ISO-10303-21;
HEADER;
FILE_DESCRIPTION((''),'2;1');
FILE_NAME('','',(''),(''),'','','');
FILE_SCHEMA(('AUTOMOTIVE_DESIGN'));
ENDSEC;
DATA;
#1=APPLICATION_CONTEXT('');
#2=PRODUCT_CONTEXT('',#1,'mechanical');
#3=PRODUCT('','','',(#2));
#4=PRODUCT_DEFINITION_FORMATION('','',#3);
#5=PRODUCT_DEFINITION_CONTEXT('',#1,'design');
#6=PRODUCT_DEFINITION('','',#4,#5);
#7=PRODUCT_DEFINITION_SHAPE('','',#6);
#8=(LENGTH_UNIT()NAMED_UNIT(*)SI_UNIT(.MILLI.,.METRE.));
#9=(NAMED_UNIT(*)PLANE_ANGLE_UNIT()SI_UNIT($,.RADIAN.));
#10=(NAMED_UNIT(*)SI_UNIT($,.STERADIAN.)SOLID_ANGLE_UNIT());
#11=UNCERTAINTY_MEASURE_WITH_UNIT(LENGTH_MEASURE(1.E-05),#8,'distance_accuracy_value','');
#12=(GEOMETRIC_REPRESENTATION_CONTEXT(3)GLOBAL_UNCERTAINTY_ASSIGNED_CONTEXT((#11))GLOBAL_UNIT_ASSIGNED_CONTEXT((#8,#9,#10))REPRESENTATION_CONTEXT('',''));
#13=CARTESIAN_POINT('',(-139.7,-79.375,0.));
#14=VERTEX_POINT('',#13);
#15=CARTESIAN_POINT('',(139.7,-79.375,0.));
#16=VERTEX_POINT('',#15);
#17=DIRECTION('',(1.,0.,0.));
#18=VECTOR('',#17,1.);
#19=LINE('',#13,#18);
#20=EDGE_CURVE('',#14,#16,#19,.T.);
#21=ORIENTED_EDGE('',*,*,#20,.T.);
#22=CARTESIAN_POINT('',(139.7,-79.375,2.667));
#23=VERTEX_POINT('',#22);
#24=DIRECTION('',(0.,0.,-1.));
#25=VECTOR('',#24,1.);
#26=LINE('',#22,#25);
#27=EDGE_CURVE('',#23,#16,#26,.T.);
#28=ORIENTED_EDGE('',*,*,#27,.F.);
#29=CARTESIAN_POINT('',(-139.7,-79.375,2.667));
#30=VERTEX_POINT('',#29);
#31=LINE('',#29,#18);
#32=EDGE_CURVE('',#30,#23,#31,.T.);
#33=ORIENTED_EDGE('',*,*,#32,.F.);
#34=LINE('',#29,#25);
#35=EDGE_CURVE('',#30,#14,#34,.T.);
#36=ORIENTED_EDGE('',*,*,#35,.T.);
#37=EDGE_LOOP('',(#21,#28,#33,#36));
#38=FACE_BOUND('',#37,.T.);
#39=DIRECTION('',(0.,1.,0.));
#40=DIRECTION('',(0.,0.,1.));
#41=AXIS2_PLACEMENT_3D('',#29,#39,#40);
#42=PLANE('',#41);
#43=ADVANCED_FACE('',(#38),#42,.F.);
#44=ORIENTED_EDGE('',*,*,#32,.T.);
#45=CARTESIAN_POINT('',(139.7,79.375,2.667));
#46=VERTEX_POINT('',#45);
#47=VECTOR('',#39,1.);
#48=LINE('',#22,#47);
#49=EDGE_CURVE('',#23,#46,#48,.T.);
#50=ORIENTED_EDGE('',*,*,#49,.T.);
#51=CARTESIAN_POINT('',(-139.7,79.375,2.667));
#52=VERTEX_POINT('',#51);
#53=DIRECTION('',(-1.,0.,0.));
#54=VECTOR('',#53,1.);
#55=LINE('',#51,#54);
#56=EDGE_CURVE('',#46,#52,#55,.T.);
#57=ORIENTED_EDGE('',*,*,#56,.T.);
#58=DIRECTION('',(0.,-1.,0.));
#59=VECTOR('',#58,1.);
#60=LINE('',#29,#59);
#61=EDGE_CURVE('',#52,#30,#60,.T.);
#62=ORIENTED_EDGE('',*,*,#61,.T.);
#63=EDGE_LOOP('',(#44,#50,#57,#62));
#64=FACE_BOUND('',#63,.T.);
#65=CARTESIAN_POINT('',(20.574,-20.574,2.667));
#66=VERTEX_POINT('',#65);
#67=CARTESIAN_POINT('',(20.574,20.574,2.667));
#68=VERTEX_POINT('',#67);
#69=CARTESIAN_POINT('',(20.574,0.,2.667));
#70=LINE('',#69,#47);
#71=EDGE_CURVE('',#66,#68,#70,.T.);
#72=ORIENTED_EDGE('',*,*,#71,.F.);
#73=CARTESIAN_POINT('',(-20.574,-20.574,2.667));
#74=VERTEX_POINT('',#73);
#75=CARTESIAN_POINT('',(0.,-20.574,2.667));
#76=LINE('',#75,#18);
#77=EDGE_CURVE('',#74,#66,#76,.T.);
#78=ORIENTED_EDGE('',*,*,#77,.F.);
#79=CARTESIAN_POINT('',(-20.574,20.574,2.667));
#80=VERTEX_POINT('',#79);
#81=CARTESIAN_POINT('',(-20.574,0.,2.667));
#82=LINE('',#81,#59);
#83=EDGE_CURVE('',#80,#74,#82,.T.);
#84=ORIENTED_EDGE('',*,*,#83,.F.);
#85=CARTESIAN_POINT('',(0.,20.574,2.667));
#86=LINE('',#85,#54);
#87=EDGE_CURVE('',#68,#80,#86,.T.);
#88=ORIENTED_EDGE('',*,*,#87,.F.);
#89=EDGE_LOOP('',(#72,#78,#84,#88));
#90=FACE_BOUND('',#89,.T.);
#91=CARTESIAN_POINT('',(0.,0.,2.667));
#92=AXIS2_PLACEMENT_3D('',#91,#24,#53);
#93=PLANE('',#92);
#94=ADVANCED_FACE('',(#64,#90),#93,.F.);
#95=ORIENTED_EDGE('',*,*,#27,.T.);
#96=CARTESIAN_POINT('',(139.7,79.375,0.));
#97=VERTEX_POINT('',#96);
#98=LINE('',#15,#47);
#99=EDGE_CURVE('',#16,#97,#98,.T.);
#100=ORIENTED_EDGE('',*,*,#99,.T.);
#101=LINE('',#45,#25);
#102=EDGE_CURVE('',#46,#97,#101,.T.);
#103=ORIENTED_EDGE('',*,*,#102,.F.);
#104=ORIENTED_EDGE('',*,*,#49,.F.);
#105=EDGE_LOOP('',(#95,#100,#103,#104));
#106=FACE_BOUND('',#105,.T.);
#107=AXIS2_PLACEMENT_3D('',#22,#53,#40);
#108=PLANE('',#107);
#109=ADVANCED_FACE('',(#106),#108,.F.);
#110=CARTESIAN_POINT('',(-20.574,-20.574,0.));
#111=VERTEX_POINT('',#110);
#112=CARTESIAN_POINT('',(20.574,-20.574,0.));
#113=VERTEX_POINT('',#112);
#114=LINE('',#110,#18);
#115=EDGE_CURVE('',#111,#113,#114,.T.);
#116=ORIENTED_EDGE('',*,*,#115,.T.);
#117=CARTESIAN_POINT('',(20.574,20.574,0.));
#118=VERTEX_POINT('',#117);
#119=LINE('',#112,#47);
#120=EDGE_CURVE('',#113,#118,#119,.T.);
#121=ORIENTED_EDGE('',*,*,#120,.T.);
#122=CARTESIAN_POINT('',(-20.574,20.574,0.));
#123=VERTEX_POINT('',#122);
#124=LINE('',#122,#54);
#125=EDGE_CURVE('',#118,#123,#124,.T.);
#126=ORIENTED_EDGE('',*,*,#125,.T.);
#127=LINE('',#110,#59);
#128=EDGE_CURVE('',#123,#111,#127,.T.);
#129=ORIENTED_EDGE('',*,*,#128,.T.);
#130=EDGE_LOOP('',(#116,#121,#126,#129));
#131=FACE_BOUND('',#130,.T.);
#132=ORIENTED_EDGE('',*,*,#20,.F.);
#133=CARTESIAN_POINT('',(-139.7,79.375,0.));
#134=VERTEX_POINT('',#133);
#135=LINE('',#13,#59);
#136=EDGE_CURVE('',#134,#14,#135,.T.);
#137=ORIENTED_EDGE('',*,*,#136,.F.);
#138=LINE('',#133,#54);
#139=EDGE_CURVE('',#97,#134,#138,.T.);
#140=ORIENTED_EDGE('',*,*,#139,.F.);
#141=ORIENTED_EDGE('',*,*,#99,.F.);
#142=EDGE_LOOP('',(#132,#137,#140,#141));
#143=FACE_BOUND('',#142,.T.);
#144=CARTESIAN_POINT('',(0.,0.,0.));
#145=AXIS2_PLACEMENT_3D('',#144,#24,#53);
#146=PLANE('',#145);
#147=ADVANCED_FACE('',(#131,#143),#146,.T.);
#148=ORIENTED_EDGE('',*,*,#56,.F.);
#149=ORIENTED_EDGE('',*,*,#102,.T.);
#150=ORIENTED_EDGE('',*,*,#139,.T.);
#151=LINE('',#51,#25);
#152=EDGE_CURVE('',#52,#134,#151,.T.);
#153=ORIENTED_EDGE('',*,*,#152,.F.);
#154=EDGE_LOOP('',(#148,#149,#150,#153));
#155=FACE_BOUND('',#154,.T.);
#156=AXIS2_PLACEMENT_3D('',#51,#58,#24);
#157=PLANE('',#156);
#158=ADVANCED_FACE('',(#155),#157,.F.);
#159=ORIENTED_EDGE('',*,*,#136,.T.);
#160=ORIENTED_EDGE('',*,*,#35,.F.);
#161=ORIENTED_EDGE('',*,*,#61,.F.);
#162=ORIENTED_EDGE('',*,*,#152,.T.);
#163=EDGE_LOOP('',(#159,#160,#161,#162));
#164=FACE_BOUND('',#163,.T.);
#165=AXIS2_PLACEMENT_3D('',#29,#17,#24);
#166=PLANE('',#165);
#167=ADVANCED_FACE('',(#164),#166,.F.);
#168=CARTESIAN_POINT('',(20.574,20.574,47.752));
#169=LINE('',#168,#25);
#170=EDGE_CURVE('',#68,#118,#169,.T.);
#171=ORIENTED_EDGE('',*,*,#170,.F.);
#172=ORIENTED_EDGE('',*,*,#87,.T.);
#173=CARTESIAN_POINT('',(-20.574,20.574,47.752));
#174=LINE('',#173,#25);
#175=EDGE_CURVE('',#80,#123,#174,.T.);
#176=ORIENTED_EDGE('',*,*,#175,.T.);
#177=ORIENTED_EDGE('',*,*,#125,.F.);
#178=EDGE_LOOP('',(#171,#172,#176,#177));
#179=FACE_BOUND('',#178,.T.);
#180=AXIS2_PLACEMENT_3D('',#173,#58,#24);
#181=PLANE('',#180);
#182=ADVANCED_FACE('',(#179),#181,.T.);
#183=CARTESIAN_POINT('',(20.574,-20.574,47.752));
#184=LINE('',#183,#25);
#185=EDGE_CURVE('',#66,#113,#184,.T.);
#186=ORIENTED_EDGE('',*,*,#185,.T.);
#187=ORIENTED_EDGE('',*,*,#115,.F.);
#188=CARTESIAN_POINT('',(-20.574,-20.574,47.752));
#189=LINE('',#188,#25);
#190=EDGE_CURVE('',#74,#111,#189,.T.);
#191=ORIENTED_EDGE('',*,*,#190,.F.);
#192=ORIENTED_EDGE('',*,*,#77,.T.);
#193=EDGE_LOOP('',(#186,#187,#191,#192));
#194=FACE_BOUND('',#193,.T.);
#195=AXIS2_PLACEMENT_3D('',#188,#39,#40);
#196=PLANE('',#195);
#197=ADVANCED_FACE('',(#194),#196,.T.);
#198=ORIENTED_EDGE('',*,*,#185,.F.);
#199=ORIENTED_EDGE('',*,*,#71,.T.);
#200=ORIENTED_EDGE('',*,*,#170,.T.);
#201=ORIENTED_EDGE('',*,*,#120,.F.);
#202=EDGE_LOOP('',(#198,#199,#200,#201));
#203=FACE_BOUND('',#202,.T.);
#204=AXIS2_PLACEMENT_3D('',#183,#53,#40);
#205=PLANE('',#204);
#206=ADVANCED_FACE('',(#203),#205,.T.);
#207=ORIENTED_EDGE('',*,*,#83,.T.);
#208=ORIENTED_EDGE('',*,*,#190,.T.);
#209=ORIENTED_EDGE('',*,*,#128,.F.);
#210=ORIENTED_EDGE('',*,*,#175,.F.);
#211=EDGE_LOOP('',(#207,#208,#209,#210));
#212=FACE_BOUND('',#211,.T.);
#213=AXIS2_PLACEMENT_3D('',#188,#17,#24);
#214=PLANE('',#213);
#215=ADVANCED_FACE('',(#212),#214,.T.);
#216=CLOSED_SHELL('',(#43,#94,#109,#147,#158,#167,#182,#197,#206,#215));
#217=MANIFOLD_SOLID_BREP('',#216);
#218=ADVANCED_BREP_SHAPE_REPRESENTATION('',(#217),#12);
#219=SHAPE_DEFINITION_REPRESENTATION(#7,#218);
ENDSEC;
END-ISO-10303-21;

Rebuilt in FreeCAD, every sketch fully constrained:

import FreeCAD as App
import Part
import Sketcher
Q = App.Units.Quantity


def add_polygon(sketch, points):
    """Adds a closed chain of lines whose ends are joined by coincident constraints."""
    first, n = sketch.GeometryCount, len(points)
    for a, b in zip(points, points[1:] + points[:1]):
        sketch.addGeometry(Part.LineSegment(App.Vector(*a, 0), App.Vector(*b, 0)), False)
    for i in range(n):
        sketch.addConstraint(Sketcher.Constraint("Coincident", first + i, 2, first + (i + 1) % n, 1))

doc = App.newDocument("Part")
params = doc.addObject("Spreadsheet::Sheet", "Params")
for row, (alias, value) in enumerate([
    ("sketch1_width", "11 in"),
    ("sketch1_height", "6.25 in"),
    ("pad1_length", "0.105 in"),
    ("sketch2_width", "1.62 in"),
    ("pocket1_length", "1.88 in"),
], start=1):
    params.set(f"A{row}", alias)
    params.set(f"B{row}", "=" + value)
    params.setAlias(f"B{row}", alias)

body = doc.addObject("PartDesign::Body", "Body")

sketch1 = body.newObject("Sketcher::SketchObject", "Sketch")
sketch1.AttachmentSupport = (doc.getObject("XY_Plane"), [""])
sketch1.MapMode = "FlatFace"
add_polygon(sketch1, [(-140, 79), (-140, -79), (140, -79), (140, 79)])
sketch1.addConstraint(Sketcher.Constraint("Vertical", 0))
sketch1.addConstraint(Sketcher.Constraint("Horizontal", 1))
sketch1.addConstraint(Sketcher.Constraint("Vertical", 2))
sketch1.addConstraint(Sketcher.Constraint("Horizontal", 3))
sketch1.addConstraint(Sketcher.Constraint("Symmetric", 0, 2, 2, 2, -1, 1))
sketch1.addConstraint(Sketcher.Constraint("DistanceX", 1, 1, 1, 2, Q("11 in")))
sketch1.addConstraint(Sketcher.Constraint("DistanceY", 0, 2, 0, 1, Q("6.25 in")))
sketch1.setExpression("Constraints[9]", "Params.sketch1_width")
sketch1.setExpression("Constraints[10]", "Params.sketch1_height")
pad1 = body.newObject("PartDesign::Pad", "Pad")
pad1.Profile = sketch1
pad1.setExpression("Length", "Params.pad1_length")

sketch2 = body.newObject("Sketcher::SketchObject", "Sketch001")
sketch2.AttachmentSupport = (doc.getObject("XY_Plane"), [""])
sketch2.MapMode = "FlatFace"
add_polygon(sketch2, [(-21, 21), (-21, -21), (21, -21), (21, 21)])
sketch2.addConstraint(Sketcher.Constraint("Vertical", 0))
sketch2.addConstraint(Sketcher.Constraint("Horizontal", 1))
sketch2.addConstraint(Sketcher.Constraint("Vertical", 2))
sketch2.addConstraint(Sketcher.Constraint("Horizontal", 3))
sketch2.addConstraint(Sketcher.Constraint("Symmetric", 0, 2, 2, 2, -1, 1))
sketch2.addConstraint(Sketcher.Constraint("Equal", 3, 0))
sketch2.addConstraint(Sketcher.Constraint("DistanceX", 1, 1, 1, 2, Q("1.62 in")))
sketch2.setExpression("Constraints[10]", "Params.sketch2_width")
pocket1 = body.newObject("PartDesign::Pocket", "Pocket")
pocket1.Profile = sketch2
pocket1.setExpression("Length", "Params.pocket1_length")
pocket1.Reversed = True

doc.recompute()
